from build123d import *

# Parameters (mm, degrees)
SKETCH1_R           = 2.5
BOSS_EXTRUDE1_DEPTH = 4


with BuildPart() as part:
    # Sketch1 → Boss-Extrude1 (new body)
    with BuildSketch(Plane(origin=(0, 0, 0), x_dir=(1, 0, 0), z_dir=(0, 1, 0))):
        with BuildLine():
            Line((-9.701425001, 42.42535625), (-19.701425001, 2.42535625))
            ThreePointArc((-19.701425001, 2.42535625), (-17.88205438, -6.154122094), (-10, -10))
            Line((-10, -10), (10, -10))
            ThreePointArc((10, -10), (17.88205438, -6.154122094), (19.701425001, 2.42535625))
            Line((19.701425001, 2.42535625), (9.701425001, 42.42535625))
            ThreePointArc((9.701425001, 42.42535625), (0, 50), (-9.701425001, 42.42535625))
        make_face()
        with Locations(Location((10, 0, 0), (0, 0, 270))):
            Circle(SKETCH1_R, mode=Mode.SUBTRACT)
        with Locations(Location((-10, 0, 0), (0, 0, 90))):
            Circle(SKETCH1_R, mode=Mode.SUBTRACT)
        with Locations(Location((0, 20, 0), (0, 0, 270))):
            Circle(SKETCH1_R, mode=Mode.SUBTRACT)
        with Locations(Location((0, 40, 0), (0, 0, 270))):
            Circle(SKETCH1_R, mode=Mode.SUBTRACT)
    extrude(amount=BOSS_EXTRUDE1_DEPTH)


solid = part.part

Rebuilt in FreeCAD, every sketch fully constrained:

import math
import FreeCAD as App
import Part
import Sketcher
Q = App.Units.Quantity

doc = App.newDocument("Part")
body = doc.addObject("PartDesign::Body", "Body")

sketch1 = body.newObject("Sketcher::SketchObject", "Sketch")
sketch1.AttachmentSupport = (doc.getObject("XZ_Plane"), [""])
sketch1.MapMode = "FlatFace"
sketch1.addGeometry(Part.LineSegment(App.Vector(-9.7, -42.4, 0), App.Vector(-19.7, -2.4, 0)), False)
sketch1.addGeometry(Part.ArcOfCircle(Part.Circle(App.Vector(-10, 0, 0), App.Vector(0, 0, 1), 10), math.radians(90), math.radians(194)), False)
sketch1.addGeometry(Part.LineSegment(App.Vector(-10, 10, 0), App.Vector(10, 10, 0)), False)
sketch1.addGeometry(Part.ArcOfCircle(Part.Circle(App.Vector(10, 0, 0), App.Vector(0, 0, 1), 10), math.radians(-14), math.radians(90)), False)
sketch1.addGeometry(Part.LineSegment(App.Vector(19.7, -2.4, 0), App.Vector(9.7, -42.4, 0)), False)
sketch1.addGeometry(Part.ArcOfCircle(Part.Circle(App.Vector(0, -40, 0), App.Vector(0, 0, 1), 10), math.radians(-166), math.radians(-14)), False)
sketch1.addGeometry(Part.Circle(App.Vector(-10, 0, 0), App.Vector(0, 0, 1), 2.5), False)
sketch1.addGeometry(Part.Circle(App.Vector(10, 0, 0), App.Vector(0, 0, 1), 2.5), False)
sketch1.addGeometry(Part.Circle(App.Vector(0, -20, 0), App.Vector(0, 0, 1), 2.5), False)
sketch1.addGeometry(Part.Circle(App.Vector(0, -40, 0), App.Vector(0, 0, 1), 2.5), False)
sketch1.addConstraint(Sketcher.Constraint("Tangent", 0, 2, 1, 2))
sketch1.addConstraint(Sketcher.Constraint("Tangent", 1, 1, 2, 1))
sketch1.addConstraint(Sketcher.Constraint("Tangent", 2, 2, 3, 2))
sketch1.addConstraint(Sketcher.Constraint("Tangent", 3, 1, 4, 1))
sketch1.addConstraint(Sketcher.Constraint("Tangent", 4, 2, 5, 2))
sketch1.addConstraint(Sketcher.Constraint("Tangent", 5, 1, 0, 1))
sketch1.addConstraint(Sketcher.Constraint("Horizontal", 2))
sketch1.addConstraint(Sketcher.Constraint("Coincident", 6, 3, 1, 3))
sketch1.addConstraint(Sketcher.Constraint("Coincident", 7, 3, 3, 3))
sketch1.addConstraint(Sketcher.Constraint("Coincident", 9, 3, 5, 3))
sketch1.addConstraint(Sketcher.Constraint("Equal", 1, 3))
sketch1.addConstraint(Sketcher.Constraint("Equal", 3, 5))
sketch1.addConstraint(Sketcher.Constraint("Equal", 6, 7))
sketch1.addConstraint(Sketcher.Constraint("Equal", 7, 8))
sketch1.addConstraint(Sketcher.Constraint("Equal", 8, 9))
sketch1.addConstraint(Sketcher.Constraint("Symmetric", 1, 3, 3, 3, -1, 1))
sketch1.addConstraint(Sketcher.Constraint("PointOnObject", 5, 3, -2))
sketch1.addConstraint(Sketcher.Constraint("PointOnObject", 8, 3, -2))
sketch1.addConstraint(Sketcher.Constraint("Diameter", 6, Q("5 mm")))
sketch1.addConstraint(Sketcher.Constraint("Radius", 1, Q("10 mm")))
sketch1.addConstraint(Sketcher.Constraint("DistanceX", 2, 1, 2, 2, Q("20 mm")))
sketch1.addConstraint(Sketcher.Constraint("DistanceY", 5, 3, -1, 1, Q("40 mm")))
sketch1.addConstraint(Sketcher.Constraint("DistanceY", 8, 3, -1, 1, Q("20 mm")))
pad1 = body.newObject("PartDesign::Pad", "Pad")
pad1.Profile = sketch1
pad1.Length = 4
pad1.Reversed = True

doc.recompute()
